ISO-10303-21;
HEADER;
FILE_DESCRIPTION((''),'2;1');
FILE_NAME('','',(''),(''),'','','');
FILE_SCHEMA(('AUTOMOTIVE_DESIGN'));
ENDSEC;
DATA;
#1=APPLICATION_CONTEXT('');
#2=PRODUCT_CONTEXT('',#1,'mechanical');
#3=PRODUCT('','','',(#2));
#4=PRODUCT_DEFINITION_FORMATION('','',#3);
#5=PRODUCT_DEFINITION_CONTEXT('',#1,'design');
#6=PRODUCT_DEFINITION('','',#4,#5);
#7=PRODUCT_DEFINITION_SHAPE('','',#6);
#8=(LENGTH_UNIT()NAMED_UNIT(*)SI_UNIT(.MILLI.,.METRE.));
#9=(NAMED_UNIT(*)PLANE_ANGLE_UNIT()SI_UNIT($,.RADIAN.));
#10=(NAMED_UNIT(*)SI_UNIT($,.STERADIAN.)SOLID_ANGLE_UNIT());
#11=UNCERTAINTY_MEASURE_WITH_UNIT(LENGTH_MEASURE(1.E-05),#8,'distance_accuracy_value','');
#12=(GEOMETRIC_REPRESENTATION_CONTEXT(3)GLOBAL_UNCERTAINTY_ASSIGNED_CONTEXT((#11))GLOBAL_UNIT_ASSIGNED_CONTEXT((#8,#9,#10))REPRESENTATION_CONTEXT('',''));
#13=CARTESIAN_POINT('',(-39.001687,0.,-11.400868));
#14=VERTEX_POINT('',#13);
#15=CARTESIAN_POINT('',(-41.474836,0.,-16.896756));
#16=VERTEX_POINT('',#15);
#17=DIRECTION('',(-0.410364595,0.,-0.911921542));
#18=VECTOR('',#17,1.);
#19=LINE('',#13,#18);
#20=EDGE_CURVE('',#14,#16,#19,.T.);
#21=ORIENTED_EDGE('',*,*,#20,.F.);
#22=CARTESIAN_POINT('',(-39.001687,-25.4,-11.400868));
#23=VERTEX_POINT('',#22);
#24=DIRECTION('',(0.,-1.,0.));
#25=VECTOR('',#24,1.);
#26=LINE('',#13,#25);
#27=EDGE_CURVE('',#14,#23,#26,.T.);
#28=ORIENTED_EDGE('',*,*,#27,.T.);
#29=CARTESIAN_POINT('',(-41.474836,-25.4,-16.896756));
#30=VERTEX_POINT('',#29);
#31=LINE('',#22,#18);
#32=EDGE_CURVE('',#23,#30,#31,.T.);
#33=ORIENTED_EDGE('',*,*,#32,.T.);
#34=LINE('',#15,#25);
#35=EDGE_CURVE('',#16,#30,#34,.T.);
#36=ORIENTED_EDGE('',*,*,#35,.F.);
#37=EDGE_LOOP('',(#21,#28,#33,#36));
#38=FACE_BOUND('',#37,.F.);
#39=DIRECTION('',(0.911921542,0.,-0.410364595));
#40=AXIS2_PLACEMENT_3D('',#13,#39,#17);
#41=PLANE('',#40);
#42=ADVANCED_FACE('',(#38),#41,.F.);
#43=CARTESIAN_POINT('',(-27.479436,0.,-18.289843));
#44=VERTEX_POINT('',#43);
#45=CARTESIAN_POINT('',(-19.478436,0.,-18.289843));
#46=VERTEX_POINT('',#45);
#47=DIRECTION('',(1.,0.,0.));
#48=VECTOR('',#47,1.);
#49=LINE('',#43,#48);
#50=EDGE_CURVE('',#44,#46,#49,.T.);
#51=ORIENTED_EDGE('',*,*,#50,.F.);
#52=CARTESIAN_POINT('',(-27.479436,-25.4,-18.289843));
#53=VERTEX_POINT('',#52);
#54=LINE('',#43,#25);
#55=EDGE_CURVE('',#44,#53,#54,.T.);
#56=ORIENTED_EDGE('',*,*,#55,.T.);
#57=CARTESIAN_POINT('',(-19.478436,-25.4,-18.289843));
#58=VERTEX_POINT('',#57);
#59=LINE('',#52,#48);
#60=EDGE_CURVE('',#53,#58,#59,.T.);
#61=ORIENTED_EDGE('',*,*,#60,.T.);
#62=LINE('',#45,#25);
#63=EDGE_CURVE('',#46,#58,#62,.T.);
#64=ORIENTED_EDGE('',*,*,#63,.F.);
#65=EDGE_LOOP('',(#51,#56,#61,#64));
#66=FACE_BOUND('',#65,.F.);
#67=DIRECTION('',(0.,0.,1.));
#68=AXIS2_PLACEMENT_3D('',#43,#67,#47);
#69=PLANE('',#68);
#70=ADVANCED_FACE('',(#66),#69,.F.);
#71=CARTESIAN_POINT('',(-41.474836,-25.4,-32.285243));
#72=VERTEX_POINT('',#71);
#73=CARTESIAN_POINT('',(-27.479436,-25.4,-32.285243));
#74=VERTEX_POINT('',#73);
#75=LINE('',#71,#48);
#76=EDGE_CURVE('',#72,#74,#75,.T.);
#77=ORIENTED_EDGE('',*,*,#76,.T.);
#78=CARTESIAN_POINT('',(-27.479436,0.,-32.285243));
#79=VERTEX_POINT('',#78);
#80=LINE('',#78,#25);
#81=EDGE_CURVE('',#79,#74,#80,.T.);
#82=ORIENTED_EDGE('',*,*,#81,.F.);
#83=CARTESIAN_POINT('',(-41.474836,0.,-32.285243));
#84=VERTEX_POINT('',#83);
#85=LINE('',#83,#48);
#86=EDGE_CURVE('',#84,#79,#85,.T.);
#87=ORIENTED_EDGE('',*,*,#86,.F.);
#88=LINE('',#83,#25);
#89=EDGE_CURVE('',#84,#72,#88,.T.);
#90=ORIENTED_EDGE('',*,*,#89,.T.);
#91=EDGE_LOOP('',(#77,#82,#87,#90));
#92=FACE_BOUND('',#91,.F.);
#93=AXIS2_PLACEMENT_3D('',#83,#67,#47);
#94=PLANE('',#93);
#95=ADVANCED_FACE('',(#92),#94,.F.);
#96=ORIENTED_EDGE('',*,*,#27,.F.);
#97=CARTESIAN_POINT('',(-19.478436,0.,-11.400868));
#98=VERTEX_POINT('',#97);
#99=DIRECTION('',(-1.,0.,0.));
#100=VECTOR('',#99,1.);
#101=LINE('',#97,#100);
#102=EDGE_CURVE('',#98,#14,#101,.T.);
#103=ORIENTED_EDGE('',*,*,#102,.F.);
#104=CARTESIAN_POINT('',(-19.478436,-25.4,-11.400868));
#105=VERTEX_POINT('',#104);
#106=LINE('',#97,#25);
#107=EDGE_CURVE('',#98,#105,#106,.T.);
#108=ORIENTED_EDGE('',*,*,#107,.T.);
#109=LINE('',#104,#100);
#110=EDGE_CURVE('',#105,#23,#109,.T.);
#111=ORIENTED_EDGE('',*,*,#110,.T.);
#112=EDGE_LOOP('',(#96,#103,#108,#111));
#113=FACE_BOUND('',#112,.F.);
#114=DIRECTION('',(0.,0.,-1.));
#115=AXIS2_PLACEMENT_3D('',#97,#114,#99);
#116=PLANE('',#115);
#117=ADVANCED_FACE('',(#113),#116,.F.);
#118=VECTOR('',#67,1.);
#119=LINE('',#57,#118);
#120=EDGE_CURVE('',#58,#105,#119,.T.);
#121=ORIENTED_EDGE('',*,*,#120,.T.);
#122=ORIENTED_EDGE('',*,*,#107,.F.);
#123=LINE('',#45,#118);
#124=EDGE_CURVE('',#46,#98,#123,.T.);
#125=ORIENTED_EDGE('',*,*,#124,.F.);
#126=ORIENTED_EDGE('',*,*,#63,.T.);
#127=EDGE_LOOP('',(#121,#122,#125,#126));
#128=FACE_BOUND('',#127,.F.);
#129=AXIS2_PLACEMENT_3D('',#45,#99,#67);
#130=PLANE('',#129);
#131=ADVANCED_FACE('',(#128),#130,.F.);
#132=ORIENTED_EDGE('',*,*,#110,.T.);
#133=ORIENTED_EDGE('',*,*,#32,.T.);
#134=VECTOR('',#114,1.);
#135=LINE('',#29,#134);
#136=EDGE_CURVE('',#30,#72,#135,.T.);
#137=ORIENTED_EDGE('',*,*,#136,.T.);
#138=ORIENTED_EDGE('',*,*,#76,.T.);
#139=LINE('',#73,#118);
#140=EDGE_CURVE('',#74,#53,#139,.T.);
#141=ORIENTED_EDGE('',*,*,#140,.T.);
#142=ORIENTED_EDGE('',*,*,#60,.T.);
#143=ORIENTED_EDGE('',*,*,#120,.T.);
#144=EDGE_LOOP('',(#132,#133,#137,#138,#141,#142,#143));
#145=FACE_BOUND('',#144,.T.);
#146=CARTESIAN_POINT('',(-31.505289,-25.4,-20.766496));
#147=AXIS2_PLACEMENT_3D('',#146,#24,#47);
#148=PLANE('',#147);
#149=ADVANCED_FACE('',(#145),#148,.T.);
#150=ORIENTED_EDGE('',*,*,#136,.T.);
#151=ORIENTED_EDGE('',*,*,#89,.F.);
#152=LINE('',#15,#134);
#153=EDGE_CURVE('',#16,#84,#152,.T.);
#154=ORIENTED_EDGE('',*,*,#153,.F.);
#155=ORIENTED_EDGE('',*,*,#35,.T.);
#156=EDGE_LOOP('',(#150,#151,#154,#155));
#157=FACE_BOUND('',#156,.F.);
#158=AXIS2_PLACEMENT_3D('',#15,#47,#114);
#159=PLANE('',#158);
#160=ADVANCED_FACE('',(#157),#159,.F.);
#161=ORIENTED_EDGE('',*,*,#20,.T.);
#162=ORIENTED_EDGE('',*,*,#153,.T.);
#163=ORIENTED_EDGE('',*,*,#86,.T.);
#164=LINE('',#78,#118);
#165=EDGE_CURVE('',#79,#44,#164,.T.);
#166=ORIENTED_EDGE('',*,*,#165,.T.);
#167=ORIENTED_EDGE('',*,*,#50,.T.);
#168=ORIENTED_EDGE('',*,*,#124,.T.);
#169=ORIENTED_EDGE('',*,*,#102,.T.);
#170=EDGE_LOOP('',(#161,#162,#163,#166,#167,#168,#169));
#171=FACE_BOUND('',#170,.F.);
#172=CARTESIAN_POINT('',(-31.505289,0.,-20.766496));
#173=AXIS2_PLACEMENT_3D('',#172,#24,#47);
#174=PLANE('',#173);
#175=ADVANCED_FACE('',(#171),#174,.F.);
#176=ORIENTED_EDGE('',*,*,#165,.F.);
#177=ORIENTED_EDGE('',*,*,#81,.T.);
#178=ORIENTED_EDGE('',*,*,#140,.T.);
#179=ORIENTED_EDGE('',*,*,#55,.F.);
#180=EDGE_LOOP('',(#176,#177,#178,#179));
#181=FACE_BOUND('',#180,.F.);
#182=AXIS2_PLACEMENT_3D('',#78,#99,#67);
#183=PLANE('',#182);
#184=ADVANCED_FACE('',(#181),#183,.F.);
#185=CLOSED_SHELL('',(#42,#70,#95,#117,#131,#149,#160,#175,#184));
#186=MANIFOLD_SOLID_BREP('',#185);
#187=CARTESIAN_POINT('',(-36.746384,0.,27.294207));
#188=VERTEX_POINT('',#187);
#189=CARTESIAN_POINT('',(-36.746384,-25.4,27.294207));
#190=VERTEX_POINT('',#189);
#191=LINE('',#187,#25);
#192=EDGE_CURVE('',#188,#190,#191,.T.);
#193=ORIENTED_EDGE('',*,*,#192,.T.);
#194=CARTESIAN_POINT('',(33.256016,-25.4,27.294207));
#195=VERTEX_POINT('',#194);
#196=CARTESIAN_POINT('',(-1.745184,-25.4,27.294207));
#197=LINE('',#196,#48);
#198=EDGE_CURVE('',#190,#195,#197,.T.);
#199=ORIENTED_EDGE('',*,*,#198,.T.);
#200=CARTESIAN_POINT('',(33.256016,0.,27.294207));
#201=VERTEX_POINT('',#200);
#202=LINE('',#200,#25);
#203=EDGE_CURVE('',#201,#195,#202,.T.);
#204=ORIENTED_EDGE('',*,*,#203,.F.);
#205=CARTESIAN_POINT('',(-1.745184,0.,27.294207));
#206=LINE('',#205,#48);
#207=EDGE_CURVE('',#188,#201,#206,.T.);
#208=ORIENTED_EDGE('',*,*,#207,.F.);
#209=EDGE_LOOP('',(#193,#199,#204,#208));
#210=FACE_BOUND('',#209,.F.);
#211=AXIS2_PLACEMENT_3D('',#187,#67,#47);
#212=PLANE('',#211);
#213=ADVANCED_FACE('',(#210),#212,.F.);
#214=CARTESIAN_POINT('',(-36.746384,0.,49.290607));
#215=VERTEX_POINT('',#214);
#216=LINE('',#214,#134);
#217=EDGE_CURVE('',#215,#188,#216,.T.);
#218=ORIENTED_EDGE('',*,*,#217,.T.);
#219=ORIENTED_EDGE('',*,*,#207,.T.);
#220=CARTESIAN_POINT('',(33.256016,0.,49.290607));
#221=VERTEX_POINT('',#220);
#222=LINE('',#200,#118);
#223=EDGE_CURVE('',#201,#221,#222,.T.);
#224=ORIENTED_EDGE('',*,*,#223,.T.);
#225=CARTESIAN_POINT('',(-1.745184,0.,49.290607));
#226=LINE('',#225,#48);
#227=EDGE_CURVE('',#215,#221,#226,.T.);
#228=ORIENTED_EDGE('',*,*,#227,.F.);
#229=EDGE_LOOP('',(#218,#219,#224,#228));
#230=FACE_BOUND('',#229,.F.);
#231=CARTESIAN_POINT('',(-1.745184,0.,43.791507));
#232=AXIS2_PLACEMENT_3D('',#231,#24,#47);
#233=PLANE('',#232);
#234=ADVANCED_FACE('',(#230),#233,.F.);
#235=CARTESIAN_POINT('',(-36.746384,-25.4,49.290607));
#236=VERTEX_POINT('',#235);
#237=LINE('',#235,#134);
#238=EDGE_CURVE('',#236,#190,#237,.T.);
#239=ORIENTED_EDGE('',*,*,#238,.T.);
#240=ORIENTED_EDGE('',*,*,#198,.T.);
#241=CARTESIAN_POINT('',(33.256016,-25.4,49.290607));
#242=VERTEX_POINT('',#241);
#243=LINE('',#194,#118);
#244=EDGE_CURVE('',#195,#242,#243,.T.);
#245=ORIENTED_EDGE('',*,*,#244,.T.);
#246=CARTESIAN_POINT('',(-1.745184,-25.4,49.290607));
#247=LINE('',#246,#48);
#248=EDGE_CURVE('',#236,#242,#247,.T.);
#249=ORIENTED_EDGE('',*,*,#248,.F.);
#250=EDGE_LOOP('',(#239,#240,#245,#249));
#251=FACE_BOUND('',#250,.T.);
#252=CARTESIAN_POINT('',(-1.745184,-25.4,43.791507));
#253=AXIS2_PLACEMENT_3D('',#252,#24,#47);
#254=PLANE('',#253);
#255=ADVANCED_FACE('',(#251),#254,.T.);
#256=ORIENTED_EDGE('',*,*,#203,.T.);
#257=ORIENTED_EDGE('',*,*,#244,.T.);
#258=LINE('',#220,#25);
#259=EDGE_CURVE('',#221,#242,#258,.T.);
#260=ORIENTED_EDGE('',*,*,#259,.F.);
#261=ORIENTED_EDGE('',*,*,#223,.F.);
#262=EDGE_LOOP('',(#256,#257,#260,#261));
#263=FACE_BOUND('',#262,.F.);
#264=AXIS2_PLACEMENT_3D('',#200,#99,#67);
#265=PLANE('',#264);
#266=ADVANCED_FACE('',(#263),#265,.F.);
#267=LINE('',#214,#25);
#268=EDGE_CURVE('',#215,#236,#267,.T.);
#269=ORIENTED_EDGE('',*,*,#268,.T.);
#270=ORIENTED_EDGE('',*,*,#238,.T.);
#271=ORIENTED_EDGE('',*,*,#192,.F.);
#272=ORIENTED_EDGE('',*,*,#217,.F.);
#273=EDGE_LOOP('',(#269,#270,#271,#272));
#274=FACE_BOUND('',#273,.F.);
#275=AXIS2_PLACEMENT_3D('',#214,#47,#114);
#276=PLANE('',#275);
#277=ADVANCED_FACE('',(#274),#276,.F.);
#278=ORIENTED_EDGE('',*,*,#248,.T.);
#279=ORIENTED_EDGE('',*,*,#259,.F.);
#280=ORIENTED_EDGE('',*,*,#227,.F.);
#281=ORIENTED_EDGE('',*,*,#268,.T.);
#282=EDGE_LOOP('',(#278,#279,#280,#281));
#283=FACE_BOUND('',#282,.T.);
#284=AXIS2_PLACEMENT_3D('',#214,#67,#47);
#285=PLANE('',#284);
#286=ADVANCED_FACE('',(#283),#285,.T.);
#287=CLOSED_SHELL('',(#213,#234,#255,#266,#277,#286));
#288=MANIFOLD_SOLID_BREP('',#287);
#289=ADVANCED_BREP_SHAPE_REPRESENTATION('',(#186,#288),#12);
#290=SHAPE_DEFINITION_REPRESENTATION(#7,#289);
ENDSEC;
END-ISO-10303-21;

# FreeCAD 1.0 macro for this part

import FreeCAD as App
import Part
import Sketcher
Q = App.Units.Quantity


def add_polygon(sketch, points):
    """Adds a closed chain of lines whose ends are joined by coincident constraints."""
    first, n = sketch.GeometryCount, len(points)
    for a, b in zip(points, points[1:] + points[:1]):
        sketch.addGeometry(Part.LineSegment(App.Vector(*a, 0), App.Vector(*b, 0)), False)
    for i in range(n):
        sketch.addConstraint(Sketcher.Constraint("Coincident", first + i, 2, first + (i + 1) % n, 1))

doc = App.newDocument("Part")
body = doc.addObject("PartDesign::Body", "Body")
body.AllowCompound = True

sketch1 = body.newObject("Sketcher::SketchObject", "Sketch")
sketch1.AttachmentSupport = (doc.getObject("XZ_Plane"), [""])
sketch1.MapMode = "FlatFace"
add_polygon(sketch1, [(-36.746384, 49.290607), (-36.746384, 27.294207), (33.256016, 27.294207), (33.256016, 49.290607)])
add_polygon(sketch1, [(-39.001687, -11.400868), (-41.474836, -16.896756), (-41.474836, -32.285243), (-27.479436, -32.285243), (-27.479436, -18.289843), (-19.478436, -18.289843), (-19.478436, -11.400868)])
sketch1.addConstraint([
    Sketcher.Constraint("Vertical", 0),
    Sketcher.Constraint("Horizontal", 1),
    Sketcher.Constraint("Vertical", 2),
    Sketcher.Constraint("Horizontal", 3),
    Sketcher.Constraint("Vertical", 5),
    Sketcher.Constraint("Horizontal", 6),
    Sketcher.Constraint("Vertical", 7),
    Sketcher.Constraint("Horizontal", 8),
    Sketcher.Constraint("Vertical", 9),
    Sketcher.Constraint("Horizontal", 10),
    Sketcher.Constraint("Equal", 6, 7),
    Sketcher.Constraint("DistanceX", 1, 1, 1, 2, Q("2.756 in")),
    Sketcher.Constraint("DistanceX", 6, 1, 6, 2, Q("0.551 in")),
    Sketcher.Constraint("DistanceX", 8, 1, 8, 2, Q("0.315 in")),
    Sketcher.Constraint("DistanceY", 0, 2, 0, 1, Q("0.866 in")),
    Sketcher.Constraint("DistanceX", 10, 2, 10, 1, 19.523251),
    Sketcher.Constraint("Distance", 4, 6.026711),
    Sketcher.Constraint("DistanceY", 5, 2, 5, 1, 15.388487),
    Sketcher.Constraint("DistanceX", 4, 2, 1, 2, 74.730852),
    Sketcher.Constraint("DistanceY", 5, 2, 0, 2, 59.57945),
    Sketcher.Constraint("DistanceX", 0, 2, -1, 1, 36.746384),
    Sketcher.Constraint("DistanceY", -1, 1, 0, 2, 27.294207),
])
pad1 = body.newObject("PartDesign::Pad", "Pad")
pad1.Profile = sketch1
pad1.Length = Q("1 in")

doc.recompute()
